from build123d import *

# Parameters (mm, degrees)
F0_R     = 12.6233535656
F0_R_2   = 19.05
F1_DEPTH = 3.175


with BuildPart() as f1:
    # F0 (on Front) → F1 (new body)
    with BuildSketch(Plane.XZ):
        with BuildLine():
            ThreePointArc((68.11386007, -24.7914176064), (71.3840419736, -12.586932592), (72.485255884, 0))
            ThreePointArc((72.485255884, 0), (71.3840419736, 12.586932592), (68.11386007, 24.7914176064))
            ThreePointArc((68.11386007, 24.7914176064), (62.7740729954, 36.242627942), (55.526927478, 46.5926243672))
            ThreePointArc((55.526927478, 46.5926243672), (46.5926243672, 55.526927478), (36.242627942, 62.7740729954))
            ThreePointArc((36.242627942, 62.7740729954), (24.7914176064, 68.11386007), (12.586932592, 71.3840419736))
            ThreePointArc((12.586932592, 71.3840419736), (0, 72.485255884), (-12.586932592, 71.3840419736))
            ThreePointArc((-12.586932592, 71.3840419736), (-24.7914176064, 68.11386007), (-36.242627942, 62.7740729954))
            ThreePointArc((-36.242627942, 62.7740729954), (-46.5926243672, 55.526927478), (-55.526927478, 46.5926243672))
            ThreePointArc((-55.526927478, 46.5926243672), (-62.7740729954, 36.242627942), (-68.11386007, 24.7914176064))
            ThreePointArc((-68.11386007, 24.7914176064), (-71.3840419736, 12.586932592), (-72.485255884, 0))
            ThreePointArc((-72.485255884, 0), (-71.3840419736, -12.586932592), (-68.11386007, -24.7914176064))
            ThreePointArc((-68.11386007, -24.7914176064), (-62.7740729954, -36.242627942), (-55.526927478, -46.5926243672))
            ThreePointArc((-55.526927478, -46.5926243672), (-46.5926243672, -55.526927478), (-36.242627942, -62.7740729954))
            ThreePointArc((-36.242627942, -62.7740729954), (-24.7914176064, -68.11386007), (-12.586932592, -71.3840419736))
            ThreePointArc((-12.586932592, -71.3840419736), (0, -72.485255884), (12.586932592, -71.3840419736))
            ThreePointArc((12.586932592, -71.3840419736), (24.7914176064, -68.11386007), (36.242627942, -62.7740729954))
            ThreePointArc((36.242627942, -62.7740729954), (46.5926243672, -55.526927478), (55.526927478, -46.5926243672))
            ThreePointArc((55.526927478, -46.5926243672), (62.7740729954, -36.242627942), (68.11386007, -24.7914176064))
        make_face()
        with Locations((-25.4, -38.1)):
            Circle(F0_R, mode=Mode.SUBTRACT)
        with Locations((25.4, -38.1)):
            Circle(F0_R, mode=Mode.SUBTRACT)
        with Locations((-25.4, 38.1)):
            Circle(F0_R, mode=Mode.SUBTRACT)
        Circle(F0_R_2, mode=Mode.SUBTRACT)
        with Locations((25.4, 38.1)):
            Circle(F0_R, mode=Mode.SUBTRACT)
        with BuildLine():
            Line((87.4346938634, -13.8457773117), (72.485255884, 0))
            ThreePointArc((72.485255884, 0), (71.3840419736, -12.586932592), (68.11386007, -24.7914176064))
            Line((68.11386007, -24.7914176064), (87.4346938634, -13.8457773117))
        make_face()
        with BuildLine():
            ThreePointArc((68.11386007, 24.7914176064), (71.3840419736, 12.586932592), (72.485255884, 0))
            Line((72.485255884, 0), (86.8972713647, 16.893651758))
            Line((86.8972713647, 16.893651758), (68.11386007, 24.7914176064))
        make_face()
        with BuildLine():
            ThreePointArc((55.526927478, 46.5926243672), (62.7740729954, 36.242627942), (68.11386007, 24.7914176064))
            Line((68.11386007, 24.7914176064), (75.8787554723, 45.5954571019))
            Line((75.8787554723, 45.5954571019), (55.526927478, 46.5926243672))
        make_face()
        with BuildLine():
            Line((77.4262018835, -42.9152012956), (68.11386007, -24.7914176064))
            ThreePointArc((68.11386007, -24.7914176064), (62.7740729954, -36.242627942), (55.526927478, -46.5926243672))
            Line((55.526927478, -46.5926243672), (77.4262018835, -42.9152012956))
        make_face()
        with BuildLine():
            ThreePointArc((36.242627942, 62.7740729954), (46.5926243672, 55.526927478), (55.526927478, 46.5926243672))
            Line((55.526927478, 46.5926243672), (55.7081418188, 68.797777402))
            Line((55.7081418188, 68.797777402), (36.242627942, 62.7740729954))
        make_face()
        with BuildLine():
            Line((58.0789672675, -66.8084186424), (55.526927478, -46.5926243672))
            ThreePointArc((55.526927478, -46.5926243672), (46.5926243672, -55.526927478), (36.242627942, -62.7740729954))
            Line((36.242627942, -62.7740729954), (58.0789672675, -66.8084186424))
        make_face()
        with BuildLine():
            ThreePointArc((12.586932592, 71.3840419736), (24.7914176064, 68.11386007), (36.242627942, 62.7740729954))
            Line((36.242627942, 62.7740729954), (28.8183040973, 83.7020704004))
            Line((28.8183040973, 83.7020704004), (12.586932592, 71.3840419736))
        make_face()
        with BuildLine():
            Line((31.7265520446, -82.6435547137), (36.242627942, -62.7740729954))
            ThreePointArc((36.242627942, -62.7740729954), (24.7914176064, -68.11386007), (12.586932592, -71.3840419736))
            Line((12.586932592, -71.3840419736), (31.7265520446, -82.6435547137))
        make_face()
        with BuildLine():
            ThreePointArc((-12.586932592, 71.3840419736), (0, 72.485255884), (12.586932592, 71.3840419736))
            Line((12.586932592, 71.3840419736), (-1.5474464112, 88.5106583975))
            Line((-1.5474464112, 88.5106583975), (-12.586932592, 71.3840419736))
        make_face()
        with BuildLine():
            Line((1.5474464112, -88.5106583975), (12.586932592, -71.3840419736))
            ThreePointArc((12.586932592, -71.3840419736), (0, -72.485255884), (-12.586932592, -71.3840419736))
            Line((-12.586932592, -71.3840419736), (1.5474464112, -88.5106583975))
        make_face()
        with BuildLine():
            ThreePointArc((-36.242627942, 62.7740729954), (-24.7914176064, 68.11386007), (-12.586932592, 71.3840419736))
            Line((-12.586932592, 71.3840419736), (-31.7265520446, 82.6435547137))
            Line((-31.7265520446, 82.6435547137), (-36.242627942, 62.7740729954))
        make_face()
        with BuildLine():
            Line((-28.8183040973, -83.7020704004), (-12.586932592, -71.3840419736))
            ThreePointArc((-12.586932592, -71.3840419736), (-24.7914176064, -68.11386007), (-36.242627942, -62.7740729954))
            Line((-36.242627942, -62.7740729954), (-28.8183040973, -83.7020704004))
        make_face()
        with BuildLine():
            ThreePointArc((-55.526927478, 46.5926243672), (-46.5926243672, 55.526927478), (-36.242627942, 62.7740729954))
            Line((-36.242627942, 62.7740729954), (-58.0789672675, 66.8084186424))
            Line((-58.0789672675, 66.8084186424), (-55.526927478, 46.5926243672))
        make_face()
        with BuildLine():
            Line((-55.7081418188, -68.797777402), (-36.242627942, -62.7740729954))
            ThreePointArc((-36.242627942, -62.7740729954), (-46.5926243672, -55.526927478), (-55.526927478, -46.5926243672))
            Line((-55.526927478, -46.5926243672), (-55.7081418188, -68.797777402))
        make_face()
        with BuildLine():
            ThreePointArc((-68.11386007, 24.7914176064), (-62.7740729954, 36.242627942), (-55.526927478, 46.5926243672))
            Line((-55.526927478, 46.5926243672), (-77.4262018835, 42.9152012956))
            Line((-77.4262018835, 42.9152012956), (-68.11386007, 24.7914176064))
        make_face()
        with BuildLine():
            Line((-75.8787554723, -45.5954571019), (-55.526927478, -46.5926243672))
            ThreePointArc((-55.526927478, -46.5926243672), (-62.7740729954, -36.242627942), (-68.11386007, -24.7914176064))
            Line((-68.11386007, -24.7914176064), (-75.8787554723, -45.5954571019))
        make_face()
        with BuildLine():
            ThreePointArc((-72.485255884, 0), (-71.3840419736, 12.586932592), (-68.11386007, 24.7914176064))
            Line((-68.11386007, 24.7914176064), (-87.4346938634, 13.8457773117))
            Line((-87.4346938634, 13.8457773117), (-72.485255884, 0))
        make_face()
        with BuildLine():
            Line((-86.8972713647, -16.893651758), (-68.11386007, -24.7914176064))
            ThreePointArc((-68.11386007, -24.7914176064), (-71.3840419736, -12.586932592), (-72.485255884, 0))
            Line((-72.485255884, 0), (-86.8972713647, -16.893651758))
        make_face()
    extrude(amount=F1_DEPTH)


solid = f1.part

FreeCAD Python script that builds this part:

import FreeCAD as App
import Part
import Sketcher
from FreeCAD import Vector
Q = App.Units.Quantity

doc = App.newDocument("Part")
body = doc.addObject("PartDesign::Body", "Body")

# Sketch on XZ plane
sketch1 = body.newObject("Sketcher::SketchObject", "Sketch")
sketch1.AttachmentSupport = (doc.getObject("XZ_Plane"), [""])
sketch1.MapMode = "FlatFace"
sketch1.addGeometry([
    Part.LineSegment(Vector(68.11386, -24.791418, 0), Vector(87.434694, -13.845777, 0)),  # 0
    Part.LineSegment(Vector(87.434694, -13.845777, 0), Vector(72.485256, 0, 0)),  # 1
    Part.LineSegment(Vector(72.485256, 0, 0), Vector(86.897271, 16.893652, 0)),  # 2
    Part.LineSegment(Vector(86.897271, 16.893652, 0), Vector(68.11386, 24.791418, 0)),  # 3
    Part.LineSegment(Vector(68.11386, 24.791418, 0), Vector(75.878755, 45.595457, 0)),  # 4
    Part.LineSegment(Vector(75.878755, 45.595457, 0), Vector(55.526927, 46.592624, 0)),  # 5
    Part.LineSegment(Vector(55.526927, 46.592624, 0), Vector(55.708142, 68.797777, 0)),  # 6
    Part.LineSegment(Vector(55.708142, 68.797777, 0), Vector(36.242628, 62.774073, 0)),  # 7
    Part.LineSegment(Vector(36.242628, 62.774073, 0), Vector(28.818304, 83.70207, 0)),  # 8
    Part.LineSegment(Vector(28.818304, 83.70207, 0), Vector(12.586933, 71.384042, 0)),  # 9
    Part.LineSegment(Vector(12.586933, 71.384042, 0), Vector(-1.547446, 88.510658, 0)),  # 10
    Part.LineSegment(Vector(-1.547446, 88.510658, 0), Vector(-12.586933, 71.384042, 0)),  # 11
    Part.LineSegment(Vector(-12.586933, 71.384042, 0), Vector(-31.726552, 82.643555, 0)),  # 12
    Part.LineSegment(Vector(-31.726552, 82.643555, 0), Vector(-36.242628, 62.774073, 0)),  # 13
    Part.LineSegment(Vector(-36.242628, 62.774073, 0), Vector(-58.078967, 66.808419, 0)),  # 14
    Part.LineSegment(Vector(-58.078967, 66.808419, 0), Vector(-55.526927, 46.592624, 0)),  # 15
    Part.LineSegment(Vector(-55.526927, 46.592624, 0), Vector(-77.426202, 42.915201, 0)),  # 16
    Part.LineSegment(Vector(-77.426202, 42.915201, 0), Vector(-68.11386, 24.791418, 0)),  # 17
    Part.LineSegment(Vector(-68.11386, 24.791418, 0), Vector(-87.434694, 13.845777, 0)),  # 18
    Part.LineSegment(Vector(-87.434694, 13.845777, 0), Vector(-72.485256, 0, 0)),  # 19
    Part.LineSegment(Vector(-72.485256, 0, 0), Vector(-86.897271, -16.893652, 0)),  # 20
    Part.LineSegment(Vector(-86.897271, -16.893652, 0), Vector(-68.11386, -24.791418, 0)),  # 21
    Part.LineSegment(Vector(-68.11386, -24.791418, 0), Vector(-75.878755, -45.595457, 0)),  # 22
    Part.LineSegment(Vector(-75.878755, -45.595457, 0), Vector(-55.526927, -46.592624, 0)),  # 23
    Part.LineSegment(Vector(-55.526927, -46.592624, 0), Vector(-55.708142, -68.797777, 0)),  # 24
    Part.LineSegment(Vector(-55.708142, -68.797777, 0), Vector(-36.242628, -62.774073, 0)),  # 25
    Part.LineSegment(Vector(-36.242628, -62.774073, 0), Vector(-28.818304, -83.70207, 0)),  # 26
    Part.LineSegment(Vector(-28.818304, -83.70207, 0), Vector(-12.586933, -71.384042, 0)),  # 27
    Part.LineSegment(Vector(-12.586933, -71.384042, 0), Vector(1.547446, -88.510658, 0)),  # 28
    Part.LineSegment(Vector(1.547446, -88.510658, 0), Vector(12.586933, -71.384042, 0)),  # 29
    Part.LineSegment(Vector(12.586933, -71.384042, 0), Vector(31.726552, -82.643555, 0)),  # 30
    Part.LineSegment(Vector(31.726552, -82.643555, 0), Vector(36.242628, -62.774073, 0)),  # 31
    Part.LineSegment(Vector(36.242628, -62.774073, 0), Vector(58.078967, -66.808419, 0)),  # 32
    Part.LineSegment(Vector(58.078967, -66.808419, 0), Vector(55.526927, -46.592624, 0)),  # 33
    Part.LineSegment(Vector(55.526927, -46.592624, 0), Vector(77.426202, -42.915201, 0)),  # 34
    Part.LineSegment(Vector(77.426202, -42.915201, 0), Vector(68.11386, -24.791418, 0)),  # 35
    Part.Circle(Vector(-25.4, -38.1, 0), Vector(0, 0, 1), 12.623354),  # 36
    Part.Circle(Vector(25.4, -38.1, 0), Vector(0, 0, 1), 12.623354),  # 37
    Part.Circle(Vector(-25.4, 38.1, 0), Vector(0, 0, 1), 12.623354),  # 38
    Part.Circle(Vector(0, 0, 0), Vector(0, 0, 1), 19.05),  # 39
    Part.Circle(Vector(25.4, 38.1, 0), Vector(0, 0, 1), 12.623354),  # 40
], False)
sketch1.addConstraint([
    Sketcher.Constraint("Coincident", 0, 2, 1, 1),
    Sketcher.Constraint("Coincident", 1, 2, 2, 1),
    Sketcher.Constraint("Coincident", 2, 2, 3, 1),
    Sketcher.Constraint("Coincident", 3, 2, 4, 1),
    Sketcher.Constraint("Coincident", 4, 2, 5, 1),
    Sketcher.Constraint("Coincident", 5, 2, 6, 1),
    Sketcher.Constraint("Coincident", 6, 2, 7, 1),
    Sketcher.Constraint("Coincident", 7, 2, 8, 1),
    Sketcher.Constraint("Coincident", 8, 2, 9, 1),
    Sketcher.Constraint("Coincident", 9, 2, 10, 1),
    Sketcher.Constraint("Coincident", 10, 2, 11, 1),
    Sketcher.Constraint("Coincident", 11, 2, 12, 1),
    Sketcher.Constraint("Coincident", 12, 2, 13, 1),
    Sketcher.Constraint("Coincident", 13, 2, 14, 1),
    Sketcher.Constraint("Coincident", 14, 2, 15, 1),
    Sketcher.Constraint("Coincident", 15, 2, 16, 1),
    Sketcher.Constraint("Coincident", 16, 2, 17, 1),
    Sketcher.Constraint("Coincident", 17, 2, 18, 1),
    Sketcher.Constraint("Coincident", 18, 2, 19, 1),
    Sketcher.Constraint("Coincident", 19, 2, 20, 1),
    Sketcher.Constraint("Coincident", 20, 2, 21, 1),
    Sketcher.Constraint("Coincident", 21, 2, 22, 1),
    Sketcher.Constraint("Coincident", 22, 2, 23, 1),
    Sketcher.Constraint("Coincident", 23, 2, 24, 1),
    Sketcher.Constraint("Coincident", 24, 2, 25, 1),
    Sketcher.Constraint("Coincident", 25, 2, 26, 1),
    Sketcher.Constraint("Coincident", 26, 2, 27, 1),
    Sketcher.Constraint("Coincident", 27, 2, 28, 1),
    Sketcher.Constraint("Coincident", 28, 2, 29, 1),
    Sketcher.Constraint("Coincident", 29, 2, 30, 1),
    Sketcher.Constraint("Coincident", 30, 2, 31, 1),
    Sketcher.Constraint("Coincident", 31, 2, 32, 1),
    Sketcher.Constraint("Coincident", 32, 2, 33, 1),
    Sketcher.Constraint("Coincident", 33, 2, 34, 1),
    Sketcher.Constraint("Coincident", 34, 2, 35, 1),
    Sketcher.Constraint("Coincident", 35, 2, 0, 1),
    Sketcher.Constraint("Coincident", 39, 3, -1, 1),
    Sketcher.Constraint("Equal", 36, 37),
    Sketcher.Constraint("Equal", 37, 38),
    Sketcher.Constraint("Equal", 38, 40),
    Sketcher.Constraint("Symmetric", 37, 3, 38, 3, -1, 1),
    Sketcher.Constraint("Symmetric", 36, 3, 40, 3, -1, 1),
    Sketcher.Constraint("Symmetric", 0, 2, 18, 2, -1, 1),
    Sketcher.Constraint("Symmetric", 1, 2, 19, 2, -1, 1),
    Sketcher.Constraint("Symmetric", 2, 2, 20, 2, -1, 1),
    Sketcher.Constraint("Symmetric", 3, 2, 21, 2, -1, 1),
    Sketcher.Constraint("Symmetric", 4, 2, 22, 2, -1, 1),
    Sketcher.Constraint("Symmetric", 5, 2, 23, 2, -1, 1),
    Sketcher.Constraint("Symmetric", 6, 2, 24, 2, -1, 1),
    Sketcher.Constraint("Symmetric", 7, 2, 25, 2, -1, 1),
    Sketcher.Constraint("Symmetric", 8, 2, 26, 2, -1, 1),
    Sketcher.Constraint("Symmetric", 9, 2, 27, 2, -1, 1),
    Sketcher.Constraint("Symmetric", 10, 2, 28, 2, -1, 1),
    Sketcher.Constraint("Symmetric", 11, 2, 29, 2, -1, 1),
    Sketcher.Constraint("Symmetric", 12, 2, 30, 2, -1, 1),
    Sketcher.Constraint("Symmetric", 13, 2, 31, 2, -1, 1),
    Sketcher.Constraint("Symmetric", 14, 2, 32, 2, -1, 1),
    Sketcher.Constraint("Symmetric", 15, 2, 33, 2, -1, 1),
    Sketcher.Constraint("Symmetric", 16, 2, 34, 2, -1, 1),
    Sketcher.Constraint("Symmetric", 17, 2, 35, 2, -1, 1),
    Sketcher.Constraint("Symmetric", 36, 3, 37, 3, -2),
    Sketcher.Constraint("Symmetric", 9, 2, 11, 2, -2),
    Sketcher.Constraint("Symmetric", 7, 2, 13, 2, -2),
    Sketcher.Constraint("Symmetric", 5, 2, 15, 2, -2),
    Sketcher.Constraint("Symmetric", 3, 2, 17, 2, -2),
    Sketcher.Constraint("PointOnObject", 1, 2, -1),
    Sketcher.Constraint("Equal", 0, 2),
    Sketcher.Constraint("Equal", 1, 3),
    Sketcher.Constraint("Equal", 2, 4),
    Sketcher.Constraint("Equal", 3, 5),
    Sketcher.Constraint("Equal", 4, 6),
    Sketcher.Constraint("Equal", 5, 7),
    Sketcher.Constraint("Equal", 6, 8),
    Sketcher.Constraint("Equal", 7, 9),
    Sketcher.Constraint("Equal", 8, 10),
    Sketcher.Constraint("Equal", 9, 11),
    Sketcher.Constraint("Equal", 10, 12),
    Sketcher.Constraint("Equal", 11, 13),
    Sketcher.Constraint("Equal", 12, 14),
    Sketcher.Constraint("Equal", 13, 15),
    Sketcher.Constraint("Equal", 14, 16),
    Sketcher.Constraint("Equal", 15, 17),
    Sketcher.Constraint("Diameter", 39, Q("1.5 in")),
    Sketcher.Constraint("DistanceX", 36, 3, -1, 1, Q("1 in")),
    Sketcher.Constraint("DistanceY", 36, 3, 38, 3, Q("3 in")),
    Sketcher.Constraint("Diameter", 36, Q("25.246707 mm")),
    Sketcher.Constraint("DistanceX", 4, 2, 2, 2, Q("0.4337998 in")),
    Sketcher.Constraint("DistanceX", 16, 2, -1, 1, Q("77.426202 mm")),
    Sketcher.Constraint("DistanceY", -1, 1, 16, 2, Q("42.915201 mm")),
    Sketcher.Constraint("DistanceX", 1, 2, 4, 2, Q("3.3935 mm")),
    Sketcher.Constraint("DistanceX", 7, 2, 5, 2, Q("19.2843 mm")),
    Sketcher.Constraint("DistanceY", 17, 2, 14, 2, Q("42.017001 mm")),
    Sketcher.Constraint("DistanceX", -1, 1, 2, 2, Q("86.897271 mm")),
    Sketcher.Constraint("DistanceY", -1, 1, 2, 2, Q("16.893652 mm")),
    Sketcher.Constraint("DistanceX", -1, 1, 6, 2, Q("55.708142 mm")),
    Sketcher.Constraint("DistanceY", -1, 1, 8, 2, Q("83.70207 mm")),
    Sketcher.Constraint("DistanceY", -1, 1, 9, 2, Q("71.384042 mm")),
])
pad1 = body.newObject("PartDesign::Pad", "Pad")
pad1.Profile = sketch1
pad1.Length = Q("0.125 in")

doc.recompute()
